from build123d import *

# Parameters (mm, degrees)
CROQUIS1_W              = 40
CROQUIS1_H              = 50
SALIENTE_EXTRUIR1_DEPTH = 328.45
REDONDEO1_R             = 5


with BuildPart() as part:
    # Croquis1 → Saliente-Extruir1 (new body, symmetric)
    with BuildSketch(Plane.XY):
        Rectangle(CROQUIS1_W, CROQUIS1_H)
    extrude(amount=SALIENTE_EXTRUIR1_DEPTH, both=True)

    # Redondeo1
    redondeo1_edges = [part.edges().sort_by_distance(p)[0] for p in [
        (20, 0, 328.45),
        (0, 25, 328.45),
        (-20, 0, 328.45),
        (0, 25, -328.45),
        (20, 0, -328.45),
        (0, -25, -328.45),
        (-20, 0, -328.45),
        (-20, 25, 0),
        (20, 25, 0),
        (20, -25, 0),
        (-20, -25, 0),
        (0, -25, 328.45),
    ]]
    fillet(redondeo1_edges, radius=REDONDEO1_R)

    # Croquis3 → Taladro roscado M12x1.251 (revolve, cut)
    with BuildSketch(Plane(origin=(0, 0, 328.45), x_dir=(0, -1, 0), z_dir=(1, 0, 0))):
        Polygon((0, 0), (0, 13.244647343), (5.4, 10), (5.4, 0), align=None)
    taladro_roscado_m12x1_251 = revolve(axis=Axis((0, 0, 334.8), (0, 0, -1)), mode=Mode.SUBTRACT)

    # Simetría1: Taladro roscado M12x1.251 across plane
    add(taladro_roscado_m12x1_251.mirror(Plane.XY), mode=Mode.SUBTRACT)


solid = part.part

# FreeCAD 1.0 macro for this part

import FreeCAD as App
import Part
import Sketcher

V = App.Vector
Q = App.Units.Quantity


def add_polygon(sketch, points):
    """Adds a closed chain of lines whose ends are joined by coincident constraints."""
    first, n = sketch.GeometryCount, len(points)
    for a, b in zip(points, points[1:] + points[:1]):
        sketch.addGeometry(Part.LineSegment(App.Vector(*a, 0), App.Vector(*b, 0)), False)
    for i in range(n):
        sketch.addConstraint(Sketcher.Constraint("Coincident", first + i, 2, first + (i + 1) % n, 1))

doc = App.newDocument("Part")
body = doc.addObject("PartDesign::Body", "Body")

# Sketch on XY plane
sketch1 = body.newObject("Sketcher::SketchObject", "Sketch")
sketch1.AttachmentSupport = (doc.getObject("XY_Plane"), [""])
sketch1.MapMode = "FlatFace"
add_polygon(sketch1, [(-20, 25), (-20, -25), (20, -25), (20, 25)])  # lines 0-3
sketch1.addConstraint([
    Sketcher.Constraint("Vertical", 0),
    Sketcher.Constraint("Horizontal", 1),
    Sketcher.Constraint("Vertical", 2),
    Sketcher.Constraint("Horizontal", 3),
    Sketcher.Constraint("Symmetric", 0, 2, 2, 2, -1, 1),
    Sketcher.Constraint("DistanceX", 1, 1, 1, 2, 40.0),
    Sketcher.Constraint("DistanceY", 0, 2, 0, 1, 50.0),
])
pad1 = body.newObject("PartDesign::Pad", "Pad")
pad1.Profile = sketch1
pad1.Length = 656.9
pad1.Midplane = True
doc.recompute()

fillet = body.newObject("PartDesign::Fillet", "Fillet")
fillet.Base = (pad1, ["Edge1"])
fillet.UseAllEdges = True
fillet.Radius = 5

# Sketch on YZ plane
sketch2 = body.newObject("Sketcher::SketchObject", "Sketch001")
sketch2.AttachmentSupport = (doc.getObject("YZ_Plane"), [""])
sketch2.MapMode = "FlatFace"
add_polygon(sketch2, [(0, 315), (0, 328), (-5, 328), (-5, 318)])  # lines 0-3
sketch2.addConstraint([
    Sketcher.Constraint("Vertical", 0),
    Sketcher.Constraint("Horizontal", 1),
    Sketcher.Constraint("Vertical", 2),
    Sketcher.Constraint("PointOnObject", 0, 2, -2),
    Sketcher.Constraint("DistanceY", 2, 2, 2, 1, 10.0),
    Sketcher.Constraint("Angle", 3, Q("-31 deg")),
    Sketcher.Constraint("DistanceX", 1, 2, 1, 1, 5.4),
    Sketcher.Constraint("DistanceY", -1, 1, 0, 2, 328.45),
])
groove = body.newObject("PartDesign::Groove", "Groove")
groove.Profile = sketch2
groove.ReferenceAxis = (sketch2, ["V_Axis"])
groove.Angle = 360
doc.recompute()

mirrored = body.newObject("PartDesign::Mirrored", "Mirrored")
mirrored.Originals = [groove]
mirrored.MirrorPlane = (doc.getObject("XY_Plane"), [""])
body.Tip = mirrored

doc.recompute()
